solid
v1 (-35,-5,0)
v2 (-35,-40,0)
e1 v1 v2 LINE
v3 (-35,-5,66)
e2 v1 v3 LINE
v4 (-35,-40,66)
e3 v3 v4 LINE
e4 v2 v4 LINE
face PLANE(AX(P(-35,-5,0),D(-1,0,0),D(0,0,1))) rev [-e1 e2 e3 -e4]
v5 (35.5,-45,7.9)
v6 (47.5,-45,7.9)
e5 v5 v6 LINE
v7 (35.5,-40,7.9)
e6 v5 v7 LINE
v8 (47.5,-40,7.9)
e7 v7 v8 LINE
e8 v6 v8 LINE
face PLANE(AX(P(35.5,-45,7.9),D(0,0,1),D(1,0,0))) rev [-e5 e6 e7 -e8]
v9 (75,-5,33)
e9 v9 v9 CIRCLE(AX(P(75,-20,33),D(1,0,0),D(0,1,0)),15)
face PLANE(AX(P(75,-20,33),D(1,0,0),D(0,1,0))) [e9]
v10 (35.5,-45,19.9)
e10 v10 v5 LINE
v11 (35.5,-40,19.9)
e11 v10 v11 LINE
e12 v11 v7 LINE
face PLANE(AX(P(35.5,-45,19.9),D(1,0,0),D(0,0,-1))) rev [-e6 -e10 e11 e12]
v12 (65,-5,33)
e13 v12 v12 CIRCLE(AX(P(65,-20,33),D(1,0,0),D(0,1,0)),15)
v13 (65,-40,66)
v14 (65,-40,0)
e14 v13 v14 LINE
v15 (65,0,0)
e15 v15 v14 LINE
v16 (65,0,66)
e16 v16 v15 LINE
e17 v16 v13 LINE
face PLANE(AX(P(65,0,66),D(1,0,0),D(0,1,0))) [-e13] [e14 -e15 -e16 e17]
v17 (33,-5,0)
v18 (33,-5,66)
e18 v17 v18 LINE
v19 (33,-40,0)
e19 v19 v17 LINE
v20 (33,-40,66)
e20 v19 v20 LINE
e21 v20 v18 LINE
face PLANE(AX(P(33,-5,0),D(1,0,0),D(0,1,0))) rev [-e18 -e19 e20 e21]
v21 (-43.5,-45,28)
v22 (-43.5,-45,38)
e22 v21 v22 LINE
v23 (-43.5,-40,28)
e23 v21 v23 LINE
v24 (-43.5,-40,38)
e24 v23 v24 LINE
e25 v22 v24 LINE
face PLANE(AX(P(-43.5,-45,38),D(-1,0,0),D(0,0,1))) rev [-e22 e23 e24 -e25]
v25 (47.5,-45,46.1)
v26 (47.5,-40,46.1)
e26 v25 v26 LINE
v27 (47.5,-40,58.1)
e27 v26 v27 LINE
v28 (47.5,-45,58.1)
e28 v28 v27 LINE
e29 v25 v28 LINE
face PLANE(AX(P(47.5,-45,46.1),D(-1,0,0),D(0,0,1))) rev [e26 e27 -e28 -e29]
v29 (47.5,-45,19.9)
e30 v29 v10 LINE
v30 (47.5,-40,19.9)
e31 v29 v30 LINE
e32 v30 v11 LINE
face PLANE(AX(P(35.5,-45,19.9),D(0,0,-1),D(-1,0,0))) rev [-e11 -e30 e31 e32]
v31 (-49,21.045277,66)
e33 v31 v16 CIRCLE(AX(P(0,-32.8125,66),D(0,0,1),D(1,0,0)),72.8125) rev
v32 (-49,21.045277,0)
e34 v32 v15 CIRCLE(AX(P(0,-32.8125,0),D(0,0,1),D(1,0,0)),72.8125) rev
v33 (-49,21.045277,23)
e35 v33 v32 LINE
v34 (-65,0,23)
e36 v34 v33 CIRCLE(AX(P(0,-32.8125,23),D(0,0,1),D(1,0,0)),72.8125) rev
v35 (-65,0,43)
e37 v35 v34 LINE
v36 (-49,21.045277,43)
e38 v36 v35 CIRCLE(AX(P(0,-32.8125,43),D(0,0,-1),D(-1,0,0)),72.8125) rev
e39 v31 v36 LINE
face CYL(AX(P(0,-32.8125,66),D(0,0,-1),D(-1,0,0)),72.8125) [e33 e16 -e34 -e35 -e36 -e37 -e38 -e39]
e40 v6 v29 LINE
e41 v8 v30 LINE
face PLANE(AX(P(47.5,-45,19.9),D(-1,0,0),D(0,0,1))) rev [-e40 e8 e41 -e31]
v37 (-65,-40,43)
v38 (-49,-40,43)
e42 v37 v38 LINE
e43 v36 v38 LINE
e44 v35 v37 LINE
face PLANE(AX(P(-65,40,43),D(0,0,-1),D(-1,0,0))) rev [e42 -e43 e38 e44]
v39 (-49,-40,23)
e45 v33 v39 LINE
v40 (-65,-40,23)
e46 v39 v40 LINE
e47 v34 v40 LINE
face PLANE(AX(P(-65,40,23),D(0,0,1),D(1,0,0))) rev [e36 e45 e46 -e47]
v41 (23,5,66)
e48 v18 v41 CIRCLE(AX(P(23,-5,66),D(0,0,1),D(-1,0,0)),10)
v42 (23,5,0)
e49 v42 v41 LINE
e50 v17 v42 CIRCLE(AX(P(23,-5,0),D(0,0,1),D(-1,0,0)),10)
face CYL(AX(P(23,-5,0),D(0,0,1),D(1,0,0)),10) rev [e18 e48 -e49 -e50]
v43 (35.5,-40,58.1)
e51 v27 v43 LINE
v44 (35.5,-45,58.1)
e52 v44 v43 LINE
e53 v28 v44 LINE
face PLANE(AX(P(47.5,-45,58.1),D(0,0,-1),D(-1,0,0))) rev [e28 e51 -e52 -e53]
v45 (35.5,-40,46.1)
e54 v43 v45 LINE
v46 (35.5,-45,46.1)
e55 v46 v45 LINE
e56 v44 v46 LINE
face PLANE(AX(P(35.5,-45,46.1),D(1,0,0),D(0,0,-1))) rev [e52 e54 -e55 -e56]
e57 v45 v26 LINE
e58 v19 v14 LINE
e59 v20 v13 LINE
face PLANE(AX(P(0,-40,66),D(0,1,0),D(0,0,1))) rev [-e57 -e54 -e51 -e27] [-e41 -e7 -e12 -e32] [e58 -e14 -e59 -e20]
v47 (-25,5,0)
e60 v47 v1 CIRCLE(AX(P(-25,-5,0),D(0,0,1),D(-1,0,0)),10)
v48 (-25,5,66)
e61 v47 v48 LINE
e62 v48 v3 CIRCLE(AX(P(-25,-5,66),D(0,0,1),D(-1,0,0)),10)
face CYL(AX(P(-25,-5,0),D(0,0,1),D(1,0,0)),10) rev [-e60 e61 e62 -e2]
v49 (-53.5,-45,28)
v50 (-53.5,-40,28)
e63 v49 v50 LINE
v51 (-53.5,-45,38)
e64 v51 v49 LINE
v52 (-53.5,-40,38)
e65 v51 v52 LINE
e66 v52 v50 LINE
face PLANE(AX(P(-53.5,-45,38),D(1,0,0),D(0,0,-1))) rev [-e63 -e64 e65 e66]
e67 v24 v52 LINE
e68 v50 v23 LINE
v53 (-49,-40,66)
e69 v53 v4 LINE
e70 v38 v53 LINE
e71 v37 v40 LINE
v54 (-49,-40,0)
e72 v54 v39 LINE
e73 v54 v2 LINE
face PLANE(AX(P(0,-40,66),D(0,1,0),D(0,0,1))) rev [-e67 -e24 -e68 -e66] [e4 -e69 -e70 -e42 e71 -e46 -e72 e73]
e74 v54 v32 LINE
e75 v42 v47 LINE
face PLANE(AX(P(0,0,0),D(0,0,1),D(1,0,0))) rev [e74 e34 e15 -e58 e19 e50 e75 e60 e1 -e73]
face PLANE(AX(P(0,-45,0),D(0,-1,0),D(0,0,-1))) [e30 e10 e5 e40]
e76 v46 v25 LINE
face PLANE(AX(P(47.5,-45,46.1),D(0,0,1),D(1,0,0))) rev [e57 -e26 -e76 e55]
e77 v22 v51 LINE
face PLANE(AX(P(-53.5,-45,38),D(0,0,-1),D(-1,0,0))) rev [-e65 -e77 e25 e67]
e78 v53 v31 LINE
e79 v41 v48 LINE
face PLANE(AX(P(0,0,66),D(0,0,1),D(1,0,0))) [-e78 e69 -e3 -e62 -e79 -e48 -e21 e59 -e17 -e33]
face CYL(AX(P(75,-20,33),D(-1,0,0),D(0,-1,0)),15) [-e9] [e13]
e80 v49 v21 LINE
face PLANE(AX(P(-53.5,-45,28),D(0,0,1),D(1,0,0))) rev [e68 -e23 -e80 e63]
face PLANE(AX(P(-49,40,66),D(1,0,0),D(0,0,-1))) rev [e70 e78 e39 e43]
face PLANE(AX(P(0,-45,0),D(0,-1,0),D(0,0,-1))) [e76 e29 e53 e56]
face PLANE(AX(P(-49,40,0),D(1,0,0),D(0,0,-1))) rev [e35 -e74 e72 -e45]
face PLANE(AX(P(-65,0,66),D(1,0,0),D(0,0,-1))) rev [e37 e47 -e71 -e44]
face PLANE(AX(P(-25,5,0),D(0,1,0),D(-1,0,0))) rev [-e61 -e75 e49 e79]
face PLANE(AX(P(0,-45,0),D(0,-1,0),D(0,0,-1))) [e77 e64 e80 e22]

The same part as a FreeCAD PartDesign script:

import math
import FreeCAD as App
import Part
import Sketcher

V = App.Vector


def add_polygon(sketch, points):
    """Adds a closed chain of lines whose ends are joined by coincident constraints."""
    first, n = sketch.GeometryCount, len(points)
    for a, b in zip(points, points[1:] + points[:1]):
        sketch.addGeometry(Part.LineSegment(App.Vector(*a, 0), App.Vector(*b, 0)), False)
    for i in range(n):
        sketch.addConstraint(Sketcher.Constraint("Coincident", first + i, 2, first + (i + 1) % n, 1))

doc = App.newDocument("Part")
body = doc.addObject("PartDesign::Body", "Body")

sketch1 = doc.addObject("Sketcher::SketchObject", "Sketch")
body.addObject(sketch1)
sketch1.AttachmentSupport = (doc.XY_Plane, [""])
sketch1.MapMode = "FlatFace"
sketch1.addGeometry([
    Part.ArcOfCircle(Part.Circle(V(0, -33, 0), V(0, 0, 1), 73), math.radians(27), math.radians(90)),
    Part.ArcOfCircle(Part.Circle(V(0, -33, 0), V(0, 0, 1), 73), math.radians(90), math.radians(153)),
    Part.LineSegment(V(-65, 0, 0), V(-65, -40, 0)),
    Part.LineSegment(V(-65, -40, 0), V(65, -40, 0)),
    Part.LineSegment(V(65, -40, 0), V(65, 0, 0)),
], False)
sketch1.addConstraint([
    Sketcher.Constraint("Tangent", 0, 2, 1, 1),
    Sketcher.Constraint("Coincident", 1, 2, 2, 1),
    Sketcher.Constraint("Coincident", 2, 2, 3, 1),
    Sketcher.Constraint("Coincident", 3, 2, 4, 1),
    Sketcher.Constraint("Coincident", 4, 2, 0, 1),
    Sketcher.Constraint("Vertical", 2),
    Sketcher.Constraint("Horizontal", 3),
    Sketcher.Constraint("Vertical", 4),
    Sketcher.Constraint("Equal", 0, 1),
    Sketcher.Constraint("Symmetric", 1, 2, 4, 2, -1, 1),
    Sketcher.Constraint("PointOnObject", 0, 3, -2),
    Sketcher.Constraint("PointOnObject", 0, 2, -2),
    Sketcher.Constraint("DistanceX", 3, 1, 3, 2, 130.0),
    Sketcher.Constraint("DistanceY", 2, 2, 2, 1, 40.0),
    Sketcher.Constraint("DistanceY", -1, 1, 0, 2, 40.0),
])
pad1 = doc.addObject("PartDesign::Pad", "Pad")
body.addObject(pad1)
pad1.Profile = sketch1
pad1.Length = 66

sketch2 = doc.addObject("Sketcher::SketchObject", "Sketch001")
body.addObject(sketch2)
sketch2.AttachmentSupport = (doc.YZ_Plane, [""])
sketch2.MapMode = "FlatFace"
sketch2.AttachmentOffset = App.Placement(V(0, 0, 65), App.Rotation())
sketch2.addGeometry(Part.Circle(V(-20, 33, 0), V(0, 0, 1), 15), False)
sketch2.addConstraint([
    Sketcher.Constraint("Diameter", 0, 30.0),
    Sketcher.Constraint("DistanceX", 0, 3, -1, 1, 20.0),
    Sketcher.Constraint("DistanceY", -1, 1, 0, 3, 33.0),
])
pad2 = doc.addObject("PartDesign::Pad", "Pad001")
body.addObject(pad2)
pad2.Profile = sketch2
pad2.Length = 10

sketch3 = doc.addObject("Sketcher::SketchObject", "Sketch002")
body.addObject(sketch3)
sketch3.AttachmentSupport = (doc.XY_Plane, [""])
sketch3.MapMode = "FlatFace"
sketch3.AttachmentOffset = App.Placement(V(0, 0, 66), App.Rotation())
sketch3.addGeometry([
    Part.LineSegment(V(23, 5, 0), V(-25, 5, 0)),
    Part.ArcOfCircle(Part.Circle(V(-25, -5, 0), V(0, 0, 1), 10), math.radians(90), math.radians(180)),
    Part.LineSegment(V(-35, -5, 0), V(-35, -40, 0)),
    Part.LineSegment(V(-35, -40, 0), V(33, -40, 0)),
    Part.LineSegment(V(33, -40, 0), V(33, -5, 0)),
    Part.ArcOfCircle(Part.Circle(V(23, -5, 0), V(0, 0, 1), 10), math.radians(0), math.radians(90)),
], False)
sketch3.addConstraint([
    Sketcher.Constraint("Tangent", 0, 2, 1, 1),
    Sketcher.Constraint("Tangent", 1, 2, 2, 1),
    Sketcher.Constraint("Coincident", 2, 2, 3, 1),
    Sketcher.Constraint("Coincident", 3, 2, 4, 1),
    Sketcher.Constraint("Tangent", 4, 2, 5, 1),
    Sketcher.Constraint("Tangent", 5, 2, 0, 1),
    Sketcher.Constraint("Horizontal", 0),
    Sketcher.Constraint("Vertical", 2),
    Sketcher.Constraint("Horizontal", 3),
    Sketcher.Constraint("Vertical", 4),
    Sketcher.Constraint("Equal", 1, 5),
    Sketcher.Constraint("Radius", 1, 10.0),
    Sketcher.Constraint("DistanceX", 0, 2, 0, 1, 48.0),
    Sketcher.Constraint("DistanceY", 2, 2, 2, 1, 35.0),
    Sketcher.Constraint("DistanceX", 1, 3, -1, 1, 25.0),
    Sketcher.Constraint("DistanceY", 1, 3, -1, 1, 5.0),
])
pocket1 = doc.addObject("PartDesign::Pocket", "Pocket")
body.addObject(pocket1)
pocket1.Profile = sketch3
pocket1.Type = "ThroughAll"

sketch4 = doc.addObject("Sketcher::SketchObject", "Sketch003")
body.addObject(sketch4)
sketch4.AttachmentSupport = (doc.XZ_Plane, [""])
sketch4.MapMode = "FlatFace"
sketch4.AttachmentOffset = App.Placement(V(0, 0, 40), App.Rotation())
add_polygon(sketch4, [(-65, 66), (-65, 43), (-49, 43), (-49, 66)])
add_polygon(sketch4, [(-65, 23), (-65, 0), (-49, 0), (-49, 23)])
sketch4.addConstraint([
    Sketcher.Constraint("Vertical", 0),
    Sketcher.Constraint("Horizontal", 1),
    Sketcher.Constraint("Vertical", 2),
    Sketcher.Constraint("Horizontal", 3),
    Sketcher.Constraint("Vertical", 4),
    Sketcher.Constraint("Horizontal", 5),
    Sketcher.Constraint("Vertical", 6),
    Sketcher.Constraint("Horizontal", 7),
    Sketcher.Constraint("PointOnObject", 4, 2, -1),
    Sketcher.Constraint("Vertical", 3, 2, 4, 2),
    Sketcher.Constraint("Vertical", 2, 2, 5, 2),
    Sketcher.Constraint("Equal", 2, 4),
    Sketcher.Constraint("DistanceX", 1, 1, 1, 2, 16.0),
    Sketcher.Constraint("DistanceY", 0, 2, 0, 1, 23.0),
    Sketcher.Constraint("DistanceX", 0, 2, -1, 1, 65.0),
    Sketcher.Constraint("DistanceY", -1, 1, 0, 2, 43.0),
])
pocket2 = doc.addObject("PartDesign::Pocket", "Pocket001")
body.addObject(pocket2)
pocket2.Profile = sketch4
pocket2.Type = "ThroughAll"

sketch5 = doc.addObject("Sketcher::SketchObject", "Sketch004")
body.addObject(sketch5)
sketch5.AttachmentSupport = (doc.XZ_Plane, [""])
sketch5.MapMode = "FlatFace"
sketch5.AttachmentOffset = App.Placement(V(0, 0, 40), App.Rotation())
add_polygon(sketch5, [(-54, 38), (-54, 28), (-44, 28), (-44, 38)])
sketch5.addConstraint([
    Sketcher.Constraint("Vertical", 0),
    Sketcher.Constraint("Horizontal", 1),
    Sketcher.Constraint("Vertical", 2),
    Sketcher.Constraint("Horizontal", 3),
    Sketcher.Constraint("Equal", 3, 0),
    Sketcher.Constraint("DistanceX", 1, 1, 1, 2, 10.0),
    Sketcher.Constraint("DistanceY", -1, 1, 0, 2, 28.0),
    Sketcher.Constraint("DistanceX", 0, 2, -1, 1, 53.5),
])
pad3 = doc.addObject("PartDesign::Pad", "Pad002")
body.addObject(pad3)
pad3.Profile = sketch5
pad3.Length = 5

sketch6 = doc.addObject("Sketcher::SketchObject", "Sketch005")
body.addObject(sketch6)
sketch6.AttachmentSupport = (doc.XZ_Plane, [""])
sketch6.MapMode = "FlatFace"
sketch6.AttachmentOffset = App.Placement(V(0, 0, 40), App.Rotation())
add_polygon(sketch6, [(36, 20), (36, 8), (48, 8), (48, 20)])
add_polygon(sketch6, [(36, 58), (36, 46), (48, 46), (48, 58)])
sketch6.addConstraint([
    Sketcher.Constraint("Vertical", 0),
    Sketcher.Constraint("Horizontal", 1),
    Sketcher.Constraint("Vertical", 2),
    Sketcher.Constraint("Horizontal", 3),
    Sketcher.Constraint("Vertical", 4),
    Sketcher.Constraint("Horizontal", 5),
    Sketcher.Constraint("Vertical", 6),
    Sketcher.Constraint("Horizontal", 7),
    Sketcher.Constraint("Vertical", 3, 2, 4, 2),
    Sketcher.Constraint("Vertical", 2, 2, 5, 2),
    Sketcher.Constraint("Equal", 7, 0),
    Sketcher.Constraint("Equal", 2, 4),
    Sketcher.Constraint("DistanceX", 1, 1, 1, 2, 12.0),
    Sketcher.Constraint("DistanceX", -1, 1, 0, 2, 35.5),
    Sketcher.Constraint("DistanceY", -1, 1, 0, 2, 7.9),
    Sketcher.Constraint("DistanceY", -1, 1, 4, 2, 46.1),
])
pad4 = doc.addObject("PartDesign::Pad", "Pad003")
body.addObject(pad4)
pad4.Profile = sketch6
pad4.Length = 5

doc.recompute()
